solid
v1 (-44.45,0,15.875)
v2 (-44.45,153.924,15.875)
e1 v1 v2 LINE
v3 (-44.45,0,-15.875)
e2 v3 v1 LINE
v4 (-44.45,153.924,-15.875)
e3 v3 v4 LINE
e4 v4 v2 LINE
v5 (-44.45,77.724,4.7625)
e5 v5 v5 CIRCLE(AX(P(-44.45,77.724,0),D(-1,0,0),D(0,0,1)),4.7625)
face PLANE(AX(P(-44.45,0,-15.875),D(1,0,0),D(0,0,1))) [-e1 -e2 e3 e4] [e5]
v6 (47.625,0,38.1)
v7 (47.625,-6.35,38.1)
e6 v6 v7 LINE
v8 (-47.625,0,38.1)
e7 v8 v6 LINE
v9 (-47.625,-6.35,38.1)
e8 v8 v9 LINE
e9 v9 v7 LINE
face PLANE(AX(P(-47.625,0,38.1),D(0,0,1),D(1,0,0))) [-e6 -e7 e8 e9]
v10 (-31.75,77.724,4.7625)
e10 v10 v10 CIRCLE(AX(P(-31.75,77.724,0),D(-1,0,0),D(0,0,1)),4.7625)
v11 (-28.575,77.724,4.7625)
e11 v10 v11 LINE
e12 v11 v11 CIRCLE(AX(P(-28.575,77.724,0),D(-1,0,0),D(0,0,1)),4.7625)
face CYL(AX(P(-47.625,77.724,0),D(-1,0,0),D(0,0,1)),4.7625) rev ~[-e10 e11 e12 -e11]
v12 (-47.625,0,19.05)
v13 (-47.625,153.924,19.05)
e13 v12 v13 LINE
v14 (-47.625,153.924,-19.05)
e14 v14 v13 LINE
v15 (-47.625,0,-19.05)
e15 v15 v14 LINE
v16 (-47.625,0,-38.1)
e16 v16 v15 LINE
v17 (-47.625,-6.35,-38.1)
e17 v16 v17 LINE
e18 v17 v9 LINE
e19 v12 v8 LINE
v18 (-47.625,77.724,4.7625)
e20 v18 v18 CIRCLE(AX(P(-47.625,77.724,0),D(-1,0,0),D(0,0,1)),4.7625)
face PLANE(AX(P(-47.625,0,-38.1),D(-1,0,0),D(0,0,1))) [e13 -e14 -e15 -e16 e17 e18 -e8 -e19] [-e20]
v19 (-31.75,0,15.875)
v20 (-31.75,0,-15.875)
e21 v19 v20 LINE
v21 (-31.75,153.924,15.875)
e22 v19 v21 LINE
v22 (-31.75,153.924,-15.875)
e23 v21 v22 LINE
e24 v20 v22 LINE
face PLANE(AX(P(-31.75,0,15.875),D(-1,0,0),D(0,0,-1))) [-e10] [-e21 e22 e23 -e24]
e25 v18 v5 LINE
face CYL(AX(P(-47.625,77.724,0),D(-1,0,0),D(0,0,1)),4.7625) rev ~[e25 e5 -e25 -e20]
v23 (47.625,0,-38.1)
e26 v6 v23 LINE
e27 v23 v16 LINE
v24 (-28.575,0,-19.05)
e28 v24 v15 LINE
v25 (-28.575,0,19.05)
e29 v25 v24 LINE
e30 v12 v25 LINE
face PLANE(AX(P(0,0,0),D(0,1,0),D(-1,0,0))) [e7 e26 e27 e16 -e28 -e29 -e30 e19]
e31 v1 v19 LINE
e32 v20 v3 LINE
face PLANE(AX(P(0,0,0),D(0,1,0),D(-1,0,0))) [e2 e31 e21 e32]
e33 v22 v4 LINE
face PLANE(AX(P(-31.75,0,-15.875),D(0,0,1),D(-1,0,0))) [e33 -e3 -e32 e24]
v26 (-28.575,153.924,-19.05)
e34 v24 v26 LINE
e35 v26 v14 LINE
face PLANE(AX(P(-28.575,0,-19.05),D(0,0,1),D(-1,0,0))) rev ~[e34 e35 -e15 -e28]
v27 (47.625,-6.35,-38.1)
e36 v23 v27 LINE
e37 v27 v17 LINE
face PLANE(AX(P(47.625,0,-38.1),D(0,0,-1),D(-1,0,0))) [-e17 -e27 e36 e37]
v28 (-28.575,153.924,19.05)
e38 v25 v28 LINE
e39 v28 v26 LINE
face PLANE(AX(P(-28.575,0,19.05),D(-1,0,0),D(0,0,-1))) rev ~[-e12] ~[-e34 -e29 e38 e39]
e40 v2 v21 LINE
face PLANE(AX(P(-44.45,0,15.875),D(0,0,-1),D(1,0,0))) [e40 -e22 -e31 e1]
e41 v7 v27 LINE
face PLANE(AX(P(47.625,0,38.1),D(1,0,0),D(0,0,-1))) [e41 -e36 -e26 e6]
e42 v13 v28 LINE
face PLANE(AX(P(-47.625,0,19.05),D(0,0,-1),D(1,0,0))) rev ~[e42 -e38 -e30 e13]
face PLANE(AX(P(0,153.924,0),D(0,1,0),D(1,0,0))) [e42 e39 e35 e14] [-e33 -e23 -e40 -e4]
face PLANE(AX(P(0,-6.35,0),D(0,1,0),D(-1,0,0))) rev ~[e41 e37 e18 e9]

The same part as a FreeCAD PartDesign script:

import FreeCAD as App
import Part
import Sketcher
from FreeCAD import Vector
Q = App.Units.Quantity


def add_polygon(sketch, points):
    """Adds a closed chain of lines whose ends are joined by coincident constraints."""
    first, n = sketch.GeometryCount, len(points)
    for a, b in zip(points, points[1:] + points[:1]):
        sketch.addGeometry(Part.LineSegment(App.Vector(*a, 0), App.Vector(*b, 0)), False)
    for i in range(n):
        sketch.addConstraint(Sketcher.Constraint("Coincident", first + i, 2, first + (i + 1) % n, 1))

doc = App.newDocument("Part")
body = doc.addObject("PartDesign::Body", "Body")

# Sketch on XZ plane
sketch1 = body.newObject("Sketcher::SketchObject", "Sketch")
sketch1.AttachmentSupport = (doc.getObject("XZ_Plane"), [""])
sketch1.MapMode = "FlatFace"
add_polygon(sketch1, [(-48, -38), (-48, 38), (48, 38), (48, -38)])  # lines 0-3
sketch1.addConstraint([
    Sketcher.Constraint("Vertical", 0),
    Sketcher.Constraint("Horizontal", 1),
    Sketcher.Constraint("Vertical", 2),
    Sketcher.Constraint("Horizontal", 3),
    Sketcher.Constraint("Symmetric", 0, 2, 2, 2, -1, 1),
    Sketcher.Constraint("DistanceY", 0, 1, 0, 2, Q("3 in")),
    Sketcher.Constraint("DistanceX", 1, 1, 1, 2, Q("3.75 in")),
])
pad1 = body.newObject("PartDesign::Pad", "Pad")
pad1.Profile = sketch1
pad1.Length = Q("0.25 in")

# Sketch on XZ plane
sketch2 = body.newObject("Sketcher::SketchObject", "Sketch001")
sketch2.AttachmentSupport = (doc.getObject("XZ_Plane"), [""])
sketch2.MapMode = "FlatFace"
add_polygon(sketch2, [(-48, -19), (-48, 19), (-29, 19), (-29, -19)])  # lines 0-3
add_polygon(sketch2, [(-32, 16), (-44, 16), (-44, -16), (-32, -16)])  # lines 4-7
sketch2.addConstraint([
    Sketcher.Constraint("Vertical", 0),
    Sketcher.Constraint("Horizontal", 1),
    Sketcher.Constraint("Vertical", 2),
    Sketcher.Constraint("Horizontal", 3),
    Sketcher.Constraint("Horizontal", 4),
    Sketcher.Constraint("Vertical", 5),
    Sketcher.Constraint("Horizontal", 6),
    Sketcher.Constraint("Vertical", 7),
    Sketcher.Constraint("DistanceY", 0, 1, 0, 2, Q("1.5 in")),
    Sketcher.Constraint("DistanceX", 1, 1, 1, 2, Q("0.75 in")),
    Sketcher.Constraint("DistanceY", -1, 1, 0, 2, Q("0.75 in")),
    Sketcher.Constraint("DistanceX", 4, 2, 4, 1, Q("0.5 in")),
    Sketcher.Constraint("DistanceX", 0, 2, 4, 2, Q("0.125 in")),
    Sketcher.Constraint("DistanceY", 4, 2, 0, 2, Q("0.125 in")),
    Sketcher.Constraint("DistanceY", 3, 2, 5, 2, Q("0.125 in")),
    Sketcher.Constraint("DistanceX", 4, 2, -1, 1, Q("1.75 in")),
])
pad2 = body.newObject("PartDesign::Pad", "Pad001")
pad2.Profile = sketch2
pad2.Length = Q("6.06 in")
pad2.Reversed = True

# Sketch on YZ plane
sketch3 = body.newObject("Sketcher::SketchObject", "Sketch002")
sketch3.AttachmentSupport = (doc.getObject("YZ_Plane"), [""])
sketch3.MapMode = "FlatFace"
sketch3.AttachmentOffset = App.Placement(Vector(0, 0, -1.875 * 25.4), App.Rotation())
sketch3.addGeometry(Part.Circle(Vector(77.7, 0, 0), Vector(0, 0, 1), 4.8), False)
sketch3.addConstraint([
    Sketcher.Constraint("PointOnObject", 0, 3, -1),
    Sketcher.Constraint("Diameter", 0, Q("0.375 in")),
    Sketcher.Constraint("DistanceX", -1, 1, 0, 3, Q("3.06 in")),
])
pocket1 = body.newObject("PartDesign::Pocket", "Pocket")
pocket1.Profile = sketch3
pocket1.Type = "ThroughAll"
pocket1.Reversed = True

doc.recompute()
